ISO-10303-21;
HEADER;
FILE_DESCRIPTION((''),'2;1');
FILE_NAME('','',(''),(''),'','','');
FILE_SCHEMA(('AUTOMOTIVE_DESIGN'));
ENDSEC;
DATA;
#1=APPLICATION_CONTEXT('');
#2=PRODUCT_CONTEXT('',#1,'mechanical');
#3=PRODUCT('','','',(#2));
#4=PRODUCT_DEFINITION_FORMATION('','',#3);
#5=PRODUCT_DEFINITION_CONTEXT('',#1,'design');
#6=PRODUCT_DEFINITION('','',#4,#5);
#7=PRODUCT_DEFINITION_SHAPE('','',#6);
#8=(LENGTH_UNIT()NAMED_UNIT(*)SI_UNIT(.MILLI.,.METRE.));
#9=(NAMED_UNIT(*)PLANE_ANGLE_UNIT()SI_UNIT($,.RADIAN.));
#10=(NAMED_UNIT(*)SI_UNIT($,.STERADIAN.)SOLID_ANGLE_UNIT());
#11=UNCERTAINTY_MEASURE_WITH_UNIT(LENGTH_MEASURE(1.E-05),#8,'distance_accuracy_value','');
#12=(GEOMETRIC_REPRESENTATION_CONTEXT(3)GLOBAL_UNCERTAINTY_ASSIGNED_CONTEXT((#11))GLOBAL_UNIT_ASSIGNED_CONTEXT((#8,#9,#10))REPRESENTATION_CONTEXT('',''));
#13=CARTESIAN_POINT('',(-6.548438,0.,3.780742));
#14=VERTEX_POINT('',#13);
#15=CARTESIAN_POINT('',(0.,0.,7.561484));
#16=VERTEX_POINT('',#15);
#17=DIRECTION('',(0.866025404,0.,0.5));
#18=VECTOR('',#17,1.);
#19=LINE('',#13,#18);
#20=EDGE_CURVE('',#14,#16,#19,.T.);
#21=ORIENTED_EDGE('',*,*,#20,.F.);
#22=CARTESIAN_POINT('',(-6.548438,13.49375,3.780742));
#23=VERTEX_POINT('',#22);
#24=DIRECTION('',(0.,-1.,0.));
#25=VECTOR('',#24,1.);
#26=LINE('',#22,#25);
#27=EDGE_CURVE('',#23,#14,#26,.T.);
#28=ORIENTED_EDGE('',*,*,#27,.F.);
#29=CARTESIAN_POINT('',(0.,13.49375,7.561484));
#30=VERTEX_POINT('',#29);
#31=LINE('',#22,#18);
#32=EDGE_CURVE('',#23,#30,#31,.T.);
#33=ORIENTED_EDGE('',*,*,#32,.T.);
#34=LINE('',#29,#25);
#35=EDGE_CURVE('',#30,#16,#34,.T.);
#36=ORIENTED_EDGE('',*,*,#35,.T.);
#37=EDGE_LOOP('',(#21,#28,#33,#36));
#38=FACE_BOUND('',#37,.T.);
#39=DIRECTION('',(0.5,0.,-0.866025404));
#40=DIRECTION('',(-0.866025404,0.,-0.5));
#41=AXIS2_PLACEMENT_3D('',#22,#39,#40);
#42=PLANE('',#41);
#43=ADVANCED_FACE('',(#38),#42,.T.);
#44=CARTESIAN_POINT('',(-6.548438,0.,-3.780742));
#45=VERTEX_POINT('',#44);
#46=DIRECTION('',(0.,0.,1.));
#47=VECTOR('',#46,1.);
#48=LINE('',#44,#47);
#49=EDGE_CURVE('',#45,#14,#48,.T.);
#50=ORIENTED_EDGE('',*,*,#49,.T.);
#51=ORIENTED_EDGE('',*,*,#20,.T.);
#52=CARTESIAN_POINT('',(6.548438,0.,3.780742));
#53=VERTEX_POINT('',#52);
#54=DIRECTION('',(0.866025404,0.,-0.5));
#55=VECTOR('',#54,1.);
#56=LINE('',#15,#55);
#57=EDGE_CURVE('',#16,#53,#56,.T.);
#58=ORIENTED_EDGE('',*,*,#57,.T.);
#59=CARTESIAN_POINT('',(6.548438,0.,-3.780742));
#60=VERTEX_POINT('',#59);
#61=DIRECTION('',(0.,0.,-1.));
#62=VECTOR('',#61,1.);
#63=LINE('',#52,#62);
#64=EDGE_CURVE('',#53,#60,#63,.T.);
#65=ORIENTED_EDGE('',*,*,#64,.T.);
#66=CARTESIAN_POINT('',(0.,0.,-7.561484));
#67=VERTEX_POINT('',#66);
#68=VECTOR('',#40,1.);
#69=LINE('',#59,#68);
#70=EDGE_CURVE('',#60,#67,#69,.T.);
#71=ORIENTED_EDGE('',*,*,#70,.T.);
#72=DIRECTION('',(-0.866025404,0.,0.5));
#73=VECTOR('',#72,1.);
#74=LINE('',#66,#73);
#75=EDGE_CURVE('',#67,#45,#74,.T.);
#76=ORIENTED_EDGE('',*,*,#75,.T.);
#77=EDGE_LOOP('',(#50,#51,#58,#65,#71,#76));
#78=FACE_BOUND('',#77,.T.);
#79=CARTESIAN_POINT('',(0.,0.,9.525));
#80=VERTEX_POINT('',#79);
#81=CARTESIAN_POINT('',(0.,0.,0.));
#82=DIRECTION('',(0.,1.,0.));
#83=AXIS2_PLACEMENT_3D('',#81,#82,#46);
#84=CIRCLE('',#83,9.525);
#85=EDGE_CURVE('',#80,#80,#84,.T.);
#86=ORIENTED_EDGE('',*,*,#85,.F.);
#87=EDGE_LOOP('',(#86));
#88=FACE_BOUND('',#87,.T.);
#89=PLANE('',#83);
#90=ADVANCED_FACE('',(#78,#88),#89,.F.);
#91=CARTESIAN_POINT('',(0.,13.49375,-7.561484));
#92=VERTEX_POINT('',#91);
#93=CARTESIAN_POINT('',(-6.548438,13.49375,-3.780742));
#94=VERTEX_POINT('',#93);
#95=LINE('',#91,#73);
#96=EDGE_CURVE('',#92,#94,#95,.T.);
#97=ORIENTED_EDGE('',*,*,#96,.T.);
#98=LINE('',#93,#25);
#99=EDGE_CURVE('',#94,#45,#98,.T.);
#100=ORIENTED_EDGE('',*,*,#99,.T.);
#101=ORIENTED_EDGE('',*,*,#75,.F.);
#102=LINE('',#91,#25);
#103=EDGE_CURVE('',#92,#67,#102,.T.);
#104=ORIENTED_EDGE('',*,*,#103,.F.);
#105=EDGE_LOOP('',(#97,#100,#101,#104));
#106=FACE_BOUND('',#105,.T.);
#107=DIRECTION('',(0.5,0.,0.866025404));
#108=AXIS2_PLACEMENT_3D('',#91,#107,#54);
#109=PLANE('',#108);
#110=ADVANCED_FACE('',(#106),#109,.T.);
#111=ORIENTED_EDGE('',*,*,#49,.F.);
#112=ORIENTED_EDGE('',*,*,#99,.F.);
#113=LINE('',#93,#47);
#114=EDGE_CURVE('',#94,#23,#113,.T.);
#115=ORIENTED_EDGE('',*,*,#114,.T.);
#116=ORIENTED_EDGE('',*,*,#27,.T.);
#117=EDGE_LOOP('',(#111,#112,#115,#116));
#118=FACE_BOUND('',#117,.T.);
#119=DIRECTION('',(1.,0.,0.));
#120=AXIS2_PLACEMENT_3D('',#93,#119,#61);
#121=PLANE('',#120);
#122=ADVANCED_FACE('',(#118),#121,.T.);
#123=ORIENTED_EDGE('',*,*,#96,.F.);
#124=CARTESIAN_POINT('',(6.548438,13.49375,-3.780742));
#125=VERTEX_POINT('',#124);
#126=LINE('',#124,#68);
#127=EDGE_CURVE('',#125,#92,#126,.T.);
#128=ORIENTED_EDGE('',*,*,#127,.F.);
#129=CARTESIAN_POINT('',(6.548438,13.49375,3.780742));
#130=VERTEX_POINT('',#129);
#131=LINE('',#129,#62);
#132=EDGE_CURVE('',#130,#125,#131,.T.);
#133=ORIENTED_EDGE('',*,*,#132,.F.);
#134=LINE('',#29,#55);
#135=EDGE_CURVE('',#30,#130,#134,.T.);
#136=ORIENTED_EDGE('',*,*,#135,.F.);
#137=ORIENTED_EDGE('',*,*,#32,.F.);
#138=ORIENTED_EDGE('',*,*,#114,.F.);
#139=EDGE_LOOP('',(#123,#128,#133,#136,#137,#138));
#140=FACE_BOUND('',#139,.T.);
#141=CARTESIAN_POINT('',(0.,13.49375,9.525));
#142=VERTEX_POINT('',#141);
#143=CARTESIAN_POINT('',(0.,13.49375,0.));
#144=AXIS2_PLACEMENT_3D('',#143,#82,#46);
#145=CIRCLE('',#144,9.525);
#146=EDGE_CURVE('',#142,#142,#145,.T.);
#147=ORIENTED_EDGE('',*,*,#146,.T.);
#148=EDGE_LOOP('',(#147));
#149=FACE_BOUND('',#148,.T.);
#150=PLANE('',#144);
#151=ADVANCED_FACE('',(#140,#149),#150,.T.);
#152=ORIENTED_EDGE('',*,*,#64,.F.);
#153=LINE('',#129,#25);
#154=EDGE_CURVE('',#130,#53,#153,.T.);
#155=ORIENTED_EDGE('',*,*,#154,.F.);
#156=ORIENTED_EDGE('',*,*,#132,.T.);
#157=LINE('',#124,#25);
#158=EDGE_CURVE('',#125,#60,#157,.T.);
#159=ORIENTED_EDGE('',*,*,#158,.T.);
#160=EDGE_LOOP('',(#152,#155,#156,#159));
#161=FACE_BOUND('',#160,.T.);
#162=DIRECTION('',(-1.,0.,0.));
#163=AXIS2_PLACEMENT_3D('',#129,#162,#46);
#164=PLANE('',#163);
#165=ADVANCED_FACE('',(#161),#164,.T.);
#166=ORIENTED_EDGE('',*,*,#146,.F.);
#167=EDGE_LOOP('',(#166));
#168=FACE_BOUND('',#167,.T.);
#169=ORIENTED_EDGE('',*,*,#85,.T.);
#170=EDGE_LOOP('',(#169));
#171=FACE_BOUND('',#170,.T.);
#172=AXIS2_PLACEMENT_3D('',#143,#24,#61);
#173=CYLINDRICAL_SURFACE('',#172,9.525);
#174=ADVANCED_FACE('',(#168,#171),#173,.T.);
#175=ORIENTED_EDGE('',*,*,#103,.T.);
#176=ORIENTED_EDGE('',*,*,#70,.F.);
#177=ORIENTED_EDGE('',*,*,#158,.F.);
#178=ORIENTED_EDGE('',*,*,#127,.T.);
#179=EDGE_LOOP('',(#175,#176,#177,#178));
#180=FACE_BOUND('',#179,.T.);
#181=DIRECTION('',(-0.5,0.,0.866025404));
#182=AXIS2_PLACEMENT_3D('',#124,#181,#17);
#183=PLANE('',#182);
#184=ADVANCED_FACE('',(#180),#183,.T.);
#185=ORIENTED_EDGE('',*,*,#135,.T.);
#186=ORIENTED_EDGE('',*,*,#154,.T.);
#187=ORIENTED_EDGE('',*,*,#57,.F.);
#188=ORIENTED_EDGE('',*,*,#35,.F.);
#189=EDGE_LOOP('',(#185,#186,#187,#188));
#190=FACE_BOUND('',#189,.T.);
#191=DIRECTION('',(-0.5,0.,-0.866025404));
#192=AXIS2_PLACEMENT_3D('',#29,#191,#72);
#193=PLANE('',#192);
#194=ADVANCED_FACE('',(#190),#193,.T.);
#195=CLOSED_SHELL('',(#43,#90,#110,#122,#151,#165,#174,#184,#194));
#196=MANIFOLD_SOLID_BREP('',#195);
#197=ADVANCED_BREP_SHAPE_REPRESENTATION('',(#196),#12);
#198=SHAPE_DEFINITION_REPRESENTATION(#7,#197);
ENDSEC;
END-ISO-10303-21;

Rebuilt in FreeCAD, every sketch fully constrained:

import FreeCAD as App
import Part
import Sketcher

V = App.Vector
Q = App.Units.Quantity


def add_polygon(sketch, points):
    """Adds a closed chain of lines whose ends are joined by coincident constraints."""
    first, n = sketch.GeometryCount, len(points)
    for a, b in zip(points, points[1:] + points[:1]):
        sketch.addGeometry(Part.LineSegment(App.Vector(*a, 0), App.Vector(*b, 0)), False)
    for i in range(n):
        sketch.addConstraint(Sketcher.Constraint("Coincident", first + i, 2, first + (i + 1) % n, 1))

doc = App.newDocument("Part")
body = doc.addObject("PartDesign::Body", "Body")

# Sketch on XZ plane
sketch1 = doc.addObject("Sketcher::SketchObject", "Sketch")
body.addObject(sketch1)
sketch1.AttachmentSupport = (doc.XZ_Plane, [""])
sketch1.MapMode = "FlatFace"
sketch1.addGeometry(Part.Circle(V(0, 0, 0), V(0, 0, 1), 9.525), False)  # 0
add_polygon(sketch1, [(-6.548438, -3.780742), (0, -7.561484), (6.548438, -3.780742), (6.548438, 3.780742), (0, 7.561484), (-6.548438, 3.780742)])  # lines 1-6
sketch1.addConstraint(Sketcher.Constraint("Vertical", 3))
sketch1.addConstraint(Sketcher.Constraint("Vertical", 6))
sketch1.addConstraint(Sketcher.Constraint("Coincident", 0, 3, -1, 1))
sketch1.addConstraint(Sketcher.Constraint("Symmetric", 1, 2, 4, 2, -1, 1))
sketch1.addConstraint(Sketcher.Constraint("Symmetric", 2, 2, 5, 2, -1, 1))
sketch1.addConstraint(Sketcher.Constraint("PointOnObject", 1, 2, -2))
sketch1.addConstraint(Sketcher.Constraint("Parallel", 1, 4))
sketch1.addConstraint(Sketcher.Constraint("Horizontal", 3, 2, 5, 2))
sketch1.addConstraint(Sketcher.Constraint("Diameter", 0, Q("0.75 in")))
sketch1.addConstraint(Sketcher.Constraint("Angle", 1, Q("-30 deg")))
sketch1.addConstraint(Sketcher.Constraint("DistanceX", 5, 2, 3, 2, Q("0.515625 in")))
sketch1.addConstraint(Sketcher.Constraint("DistanceY", 3, 1, 3, 2, Q("7.561484 mm")))
pad1 = doc.addObject("PartDesign::Pad", "Pad")
body.addObject(pad1)
pad1.Profile = sketch1
pad1.Length = Q("0.53125 in")
pad1.Reversed = True

doc.recompute()
